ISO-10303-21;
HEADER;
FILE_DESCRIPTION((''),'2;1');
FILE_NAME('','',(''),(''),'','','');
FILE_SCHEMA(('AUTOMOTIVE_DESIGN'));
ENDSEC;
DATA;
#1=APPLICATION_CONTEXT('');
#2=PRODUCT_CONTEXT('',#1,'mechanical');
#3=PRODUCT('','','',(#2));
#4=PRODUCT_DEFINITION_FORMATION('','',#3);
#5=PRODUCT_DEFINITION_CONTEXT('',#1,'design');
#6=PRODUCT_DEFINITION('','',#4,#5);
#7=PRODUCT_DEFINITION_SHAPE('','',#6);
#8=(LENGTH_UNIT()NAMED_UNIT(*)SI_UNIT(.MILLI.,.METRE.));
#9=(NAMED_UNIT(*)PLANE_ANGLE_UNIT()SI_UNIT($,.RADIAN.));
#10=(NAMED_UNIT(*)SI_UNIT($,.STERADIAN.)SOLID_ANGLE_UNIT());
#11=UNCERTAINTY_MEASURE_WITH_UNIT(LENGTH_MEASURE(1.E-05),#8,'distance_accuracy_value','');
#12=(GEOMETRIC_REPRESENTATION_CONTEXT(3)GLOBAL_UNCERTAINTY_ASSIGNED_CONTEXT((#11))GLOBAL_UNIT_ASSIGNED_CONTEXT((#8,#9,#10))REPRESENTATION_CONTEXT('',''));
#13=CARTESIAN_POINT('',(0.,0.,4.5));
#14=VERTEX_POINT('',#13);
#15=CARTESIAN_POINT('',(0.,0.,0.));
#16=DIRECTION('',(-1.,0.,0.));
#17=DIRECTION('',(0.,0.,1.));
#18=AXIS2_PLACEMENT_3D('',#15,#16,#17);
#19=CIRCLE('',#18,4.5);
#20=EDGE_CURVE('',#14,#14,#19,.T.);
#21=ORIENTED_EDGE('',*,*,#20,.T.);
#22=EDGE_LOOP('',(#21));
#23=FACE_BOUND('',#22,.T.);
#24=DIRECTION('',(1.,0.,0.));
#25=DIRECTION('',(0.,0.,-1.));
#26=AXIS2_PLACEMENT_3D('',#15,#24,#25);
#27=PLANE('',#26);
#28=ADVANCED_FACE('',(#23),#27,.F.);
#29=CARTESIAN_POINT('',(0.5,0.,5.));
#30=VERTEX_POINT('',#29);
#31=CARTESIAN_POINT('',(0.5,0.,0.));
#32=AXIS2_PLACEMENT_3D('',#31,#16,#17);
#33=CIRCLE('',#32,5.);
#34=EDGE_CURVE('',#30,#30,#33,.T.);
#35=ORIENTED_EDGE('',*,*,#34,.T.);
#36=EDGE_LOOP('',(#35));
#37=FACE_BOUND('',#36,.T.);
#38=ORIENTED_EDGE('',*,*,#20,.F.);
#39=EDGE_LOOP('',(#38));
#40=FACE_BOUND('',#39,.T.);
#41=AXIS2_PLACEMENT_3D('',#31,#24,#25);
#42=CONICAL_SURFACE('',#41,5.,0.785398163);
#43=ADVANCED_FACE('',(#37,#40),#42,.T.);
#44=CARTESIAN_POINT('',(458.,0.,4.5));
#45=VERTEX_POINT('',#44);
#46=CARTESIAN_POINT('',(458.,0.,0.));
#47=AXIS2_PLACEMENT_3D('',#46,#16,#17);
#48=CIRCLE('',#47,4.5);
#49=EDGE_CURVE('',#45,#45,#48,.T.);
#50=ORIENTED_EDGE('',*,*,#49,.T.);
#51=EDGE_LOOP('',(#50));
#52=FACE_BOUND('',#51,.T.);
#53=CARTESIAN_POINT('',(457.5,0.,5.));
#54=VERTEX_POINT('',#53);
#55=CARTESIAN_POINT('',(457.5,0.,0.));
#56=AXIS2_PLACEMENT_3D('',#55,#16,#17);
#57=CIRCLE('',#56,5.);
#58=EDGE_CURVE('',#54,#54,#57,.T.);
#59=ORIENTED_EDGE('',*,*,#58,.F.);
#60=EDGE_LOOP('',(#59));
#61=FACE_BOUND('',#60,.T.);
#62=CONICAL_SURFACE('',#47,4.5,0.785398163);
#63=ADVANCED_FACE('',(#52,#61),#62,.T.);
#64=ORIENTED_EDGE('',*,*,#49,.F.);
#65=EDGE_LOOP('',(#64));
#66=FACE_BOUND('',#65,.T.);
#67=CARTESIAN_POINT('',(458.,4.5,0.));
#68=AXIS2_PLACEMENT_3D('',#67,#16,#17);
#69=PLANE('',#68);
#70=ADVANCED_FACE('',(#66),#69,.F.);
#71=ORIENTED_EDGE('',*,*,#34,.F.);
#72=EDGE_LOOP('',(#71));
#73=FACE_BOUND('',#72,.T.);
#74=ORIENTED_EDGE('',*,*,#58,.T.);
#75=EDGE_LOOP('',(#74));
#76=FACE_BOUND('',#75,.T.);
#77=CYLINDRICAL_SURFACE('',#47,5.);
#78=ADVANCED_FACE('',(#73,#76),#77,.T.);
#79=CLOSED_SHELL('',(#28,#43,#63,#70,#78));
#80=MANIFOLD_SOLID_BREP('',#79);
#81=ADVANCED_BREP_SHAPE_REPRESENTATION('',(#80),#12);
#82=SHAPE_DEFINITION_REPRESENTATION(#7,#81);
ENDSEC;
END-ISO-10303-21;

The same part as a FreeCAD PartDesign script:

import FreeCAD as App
import Part
import Sketcher

V = App.Vector
Q = App.Units.Quantity

doc = App.newDocument("Part")
body = doc.addObject("PartDesign::Body", "Body")

sketch1 = body.newObject("Sketcher::SketchObject", "Sketch")
sketch1.AttachmentSupport = (doc.getObject("XY_Plane"), [""])
sketch1.MapMode = "FlatFace"
sketch1.addGeometry([
    Part.LineSegment(V(0, 4.5, 0), V(0, 0, 0)),
    Part.LineSegment(V(0, 0, 0), V(458, 0, 0)),
    Part.LineSegment(V(458, 0, 0), V(458, 4.5, 0)),
    Part.LineSegment(V(458, 4.5, 0), V(457.5, 5, 0)),
    Part.LineSegment(V(457.5, 5, 0), V(0.5, 5, 0)),
    Part.LineSegment(V(0.5, 5, 0), V(0, 4.5, 0)),
], False)
sketch1.addConstraint([
    Sketcher.Constraint("Coincident", 0, 2, 1, 1),
    Sketcher.Constraint("Coincident", 1, 2, 2, 1),
    Sketcher.Constraint("Coincident", 2, 2, 3, 1),
    Sketcher.Constraint("Coincident", 3, 2, 4, 1),
    Sketcher.Constraint("Coincident", 4, 2, 5, 1),
    Sketcher.Constraint("Coincident", 5, 2, 0, 1),
    Sketcher.Constraint("Vertical", 0),
    Sketcher.Constraint("Horizontal", 1),
    Sketcher.Constraint("Vertical", 2),
    Sketcher.Constraint("Horizontal", 4),
    Sketcher.Constraint("Coincident", 0, 2, -1, 1),
    Sketcher.Constraint("Perpendicular", 3, 5),
    Sketcher.Constraint("Horizontal", 2, 2, 5, 2),
    Sketcher.Constraint("Equal", 3, 5),
    Sketcher.Constraint("DistanceX", 1, 1, 1, 2, Q("458 mm")),
    Sketcher.Constraint("DistanceX", 4, 2, 4, 1, Q("457 mm")),
    Sketcher.Constraint("DistanceY", 0, 2, 0, 1, Q("4.5 mm")),
])
revolution = body.newObject("PartDesign::Revolution", "Revolution")
revolution.Profile = sketch1
revolution.ReferenceAxis = (sketch1, ["H_Axis"])
revolution.Angle = 360

doc.recompute()
